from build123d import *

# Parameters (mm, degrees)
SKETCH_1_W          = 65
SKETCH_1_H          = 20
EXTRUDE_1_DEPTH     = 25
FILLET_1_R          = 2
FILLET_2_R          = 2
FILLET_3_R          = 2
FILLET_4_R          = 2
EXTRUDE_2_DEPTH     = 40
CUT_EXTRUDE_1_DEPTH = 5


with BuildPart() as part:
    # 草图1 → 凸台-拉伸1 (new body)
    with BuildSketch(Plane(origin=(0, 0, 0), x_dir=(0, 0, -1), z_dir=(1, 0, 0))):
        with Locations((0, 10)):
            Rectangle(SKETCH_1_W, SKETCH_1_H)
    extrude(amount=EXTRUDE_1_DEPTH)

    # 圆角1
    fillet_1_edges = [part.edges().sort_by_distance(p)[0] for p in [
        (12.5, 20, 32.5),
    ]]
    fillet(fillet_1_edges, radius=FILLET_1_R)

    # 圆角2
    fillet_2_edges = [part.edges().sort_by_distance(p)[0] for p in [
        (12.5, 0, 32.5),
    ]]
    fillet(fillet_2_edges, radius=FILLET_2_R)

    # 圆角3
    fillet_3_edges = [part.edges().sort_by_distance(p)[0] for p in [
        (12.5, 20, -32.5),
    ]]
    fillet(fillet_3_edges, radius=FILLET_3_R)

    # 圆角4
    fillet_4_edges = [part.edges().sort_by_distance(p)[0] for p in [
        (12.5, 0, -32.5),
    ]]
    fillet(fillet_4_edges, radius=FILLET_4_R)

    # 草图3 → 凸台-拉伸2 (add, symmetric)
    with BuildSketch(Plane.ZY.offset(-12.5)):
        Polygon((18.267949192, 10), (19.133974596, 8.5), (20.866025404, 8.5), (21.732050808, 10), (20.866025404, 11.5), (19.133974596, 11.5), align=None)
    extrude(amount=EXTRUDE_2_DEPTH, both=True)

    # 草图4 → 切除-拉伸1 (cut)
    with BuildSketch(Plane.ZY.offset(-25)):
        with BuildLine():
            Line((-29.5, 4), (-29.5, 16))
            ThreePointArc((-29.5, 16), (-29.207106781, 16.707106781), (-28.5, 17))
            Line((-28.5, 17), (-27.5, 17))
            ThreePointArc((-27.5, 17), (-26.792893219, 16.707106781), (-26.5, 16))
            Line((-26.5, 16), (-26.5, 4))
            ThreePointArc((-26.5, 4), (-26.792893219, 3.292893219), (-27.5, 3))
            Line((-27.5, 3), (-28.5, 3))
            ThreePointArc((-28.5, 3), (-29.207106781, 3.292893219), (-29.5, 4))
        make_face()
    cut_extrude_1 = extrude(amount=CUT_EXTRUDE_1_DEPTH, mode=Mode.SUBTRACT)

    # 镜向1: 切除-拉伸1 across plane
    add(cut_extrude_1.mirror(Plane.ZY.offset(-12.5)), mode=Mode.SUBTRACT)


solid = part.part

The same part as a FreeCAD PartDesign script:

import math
import FreeCAD as App
import Part
import Sketcher

V = App.Vector
Q = App.Units.Quantity


def edges_at(feature, points):
    """Names of the edges that pass closest to the given points."""
    edges = feature.Shape.Edges
    near = lambda p: min(range(len(edges)), key=lambda i: edges[i].distToShape(Part.Vertex(*p))[0])
    return sorted({f"Edge{near(p) + 1}" for p in points})

doc = App.newDocument("Part")
body = doc.addObject("PartDesign::Body", "Body")

# Sketch on YZ plane
sketch1 = body.newObject("Sketcher::SketchObject", "Sketch")
sketch1.AttachmentSupport = (doc.getObject("YZ_Plane"), [""])
sketch1.MapMode = "FlatFace"
sketch1.addGeometry([
    Part.LineSegment(V(20, 32, 0), V(0, 32, 0)),
    Part.LineSegment(V(0, 32, 0), V(0, -32, 0)),
    Part.LineSegment(V(0, -32, 0), V(20, -32, 0)),
    Part.LineSegment(V(20, -32, 0), V(20, 32, 0)),
], False)
sketch1.addConstraint([
    Sketcher.Constraint("Coincident", 0, 2, 1, 1),
    Sketcher.Constraint("Coincident", 1, 2, 2, 1),
    Sketcher.Constraint("Coincident", 2, 2, 3, 1),
    Sketcher.Constraint("Coincident", 3, 2, 0, 1),
    Sketcher.Constraint("Horizontal", 0),
    Sketcher.Constraint("Vertical", 1),
    Sketcher.Constraint("Horizontal", 2),
    Sketcher.Constraint("Vertical", 3),
    Sketcher.Constraint("Symmetric", 0, 2, 1, 2, -1, 1),
    Sketcher.Constraint("DistanceX", 0, 2, 0, 1, 20.0),
    Sketcher.Constraint("DistanceY", 1, 2, 1, 1, 65.0),
])
pad1 = body.newObject("PartDesign::Pad", "Pad")
pad1.Profile = sketch1
pad1.Length = 25
doc.recompute()

fillet = body.newObject("PartDesign::Fillet", "Fillet")
fillet.Base = (pad1, edges_at(pad1, [(12.5, 20, 32.5)]))
fillet.Radius = 2
doc.recompute()

fillet2 = body.newObject("PartDesign::Fillet", "Fillet001")
fillet2.Base = (fillet, edges_at(fillet, [(12.5, 0, 32.5)]))
fillet2.Radius = 2
doc.recompute()

fillet3 = body.newObject("PartDesign::Fillet", "Fillet002")
fillet3.Base = (fillet2, edges_at(fillet2, [(12.5, 20, -32.5)]))
fillet3.Radius = 2
doc.recompute()

fillet4 = body.newObject("PartDesign::Fillet", "Fillet003")
fillet4.Base = (fillet3, edges_at(fillet3, [(12.5, 0, -32.5)]))
fillet4.Radius = 2

# Sketch on YZ plane
sketch2 = body.newObject("Sketcher::SketchObject", "Sketch001")
sketch2.AttachmentSupport = (doc.getObject("YZ_Plane"), [""])
sketch2.MapMode = "FlatFace"
sketch2.AttachmentOffset = App.Placement(V(0, 0, 12.5), App.Rotation())
sketch2.addGeometry([
    Part.LineSegment(V(10, 18.3, 0), V(8.5, 19.1, 0)),  # 0
    Part.LineSegment(V(8.5, 19.1, 0), V(8.5, 20.9, 0)),  # 1
    Part.LineSegment(V(8.5, 20.9, 0), V(10, 21.7, 0)),  # 2
    Part.LineSegment(V(10, 21.7, 0), V(11.5, 20.9, 0)),  # 3
    Part.LineSegment(V(11.5, 20.9, 0), V(11.5, 19.1, 0)),  # 4
    Part.LineSegment(V(11.5, 19.1, 0), V(10, 18.3, 0)),  # 5
], False)
sketch2.addConstraint([
    Sketcher.Constraint("Coincident", 0, 2, 1, 1),
    Sketcher.Constraint("Coincident", 1, 2, 2, 1),
    Sketcher.Constraint("Coincident", 2, 2, 3, 1),
    Sketcher.Constraint("Coincident", 3, 2, 4, 1),
    Sketcher.Constraint("Coincident", 4, 2, 5, 1),
    Sketcher.Constraint("Coincident", 5, 2, 0, 1),
    Sketcher.Constraint("Vertical", 1),
    Sketcher.Constraint("Vertical", 4),
    Sketcher.Constraint("Parallel", 0, 3),
    Sketcher.Constraint("Parallel", 2, 5),
    Sketcher.Constraint("Horizontal", 1, 2, 3, 2),
    Sketcher.Constraint("Horizontal", 0, 2, 4, 2),
    Sketcher.Constraint("Vertical", 2, 2, 5, 2),
    Sketcher.Constraint("Angle", 0, Q("150 deg")),
    Sketcher.Constraint("DistanceX", -1, 1, 2, 2, 10.0),
    Sketcher.Constraint("DistanceX", 1, 2, 3, 2, 3.0),
    Sketcher.Constraint("DistanceY", 1, 1, 1, 2, 1.732051),
    Sketcher.Constraint("DistanceY", -1, 1, 2, 2, 21.732051),
])
pad2 = body.newObject("PartDesign::Pad", "Pad001")
pad2.Profile = sketch2
pad2.Length = 80
pad2.Midplane = True

# Sketch on YZ plane
sketch3 = body.newObject("Sketcher::SketchObject", "Sketch002")
sketch3.AttachmentSupport = (doc.getObject("YZ_Plane"), [""])
sketch3.MapMode = "FlatFace"
sketch3.AttachmentOffset = App.Placement(V(0, 0, 25), App.Rotation())
sketch3.addGeometry([
    Part.LineSegment(V(16, -29.5, 0), V(4, -29.5, 0)),  # 0
    Part.ArcOfCircle(Part.Circle(V(4, -28.5, 0), V(0, 0, 1), 1), math.radians(-180), math.radians(-90)),  # 1
    Part.LineSegment(V(3, -28.5, 0), V(3, -27.5, 0)),  # 2
    Part.ArcOfCircle(Part.Circle(V(4, -27.5, 0), V(0, 0, 1), 1), math.radians(90), math.radians(180)),  # 3
    Part.LineSegment(V(4, -26.5, 0), V(16, -26.5, 0)),  # 4
    Part.ArcOfCircle(Part.Circle(V(16, -27.5, 0), V(0, 0, 1), 1), math.radians(0), math.radians(90)),  # 5
    Part.LineSegment(V(17, -27.5, 0), V(17, -28.5, 0)),  # 6
    Part.ArcOfCircle(Part.Circle(V(16, -28.5, 0), V(0, 0, 1), 1), math.radians(-90), math.radians(0)),  # 7
], False)
sketch3.addConstraint([
    Sketcher.Constraint("Tangent", 0, 2, 1, 2),
    Sketcher.Constraint("Tangent", 1, 1, 2, 1),
    Sketcher.Constraint("Tangent", 2, 2, 3, 2),
    Sketcher.Constraint("Tangent", 3, 1, 4, 1),
    Sketcher.Constraint("Tangent", 4, 2, 5, 2),
    Sketcher.Constraint("Tangent", 5, 1, 6, 1),
    Sketcher.Constraint("Tangent", 6, 2, 7, 2),
    Sketcher.Constraint("Tangent", 7, 1, 0, 1),
    Sketcher.Constraint("Horizontal", 0),
    Sketcher.Constraint("Vertical", 2),
    Sketcher.Constraint("Horizontal", 4),
    Sketcher.Constraint("Vertical", 6),
    Sketcher.Constraint("Equal", 1, 3),
    Sketcher.Constraint("Equal", 3, 5),
    Sketcher.Constraint("Equal", 5, 7),
    Sketcher.Constraint("Radius", 1, 1.0),
    Sketcher.Constraint("DistanceX", 0, 2, 0, 1, 12.0),
    Sketcher.Constraint("DistanceY", 2, 1, 2, 2, 1.0),
    Sketcher.Constraint("DistanceX", -1, 1, 1, 3, 4.0),
    Sketcher.Constraint("DistanceY", 1, 3, -1, 1, 28.5),
])
pocket1 = body.newObject("PartDesign::Pocket", "Pocket")
pocket1.Profile = sketch3
pocket1.Length = 5
doc.recompute()

datumplane = body.newObject("PartDesign::Plane", "DatumPlane")
datumplane.AttachmentSupport = (doc.getObject("YZ_Plane"), [""])
datumplane.MapMode = "FlatFace"
datumplane.AttachmentOffset = App.Placement(V(0, 0, 12.5), App.Rotation())
mirrored = body.newObject("PartDesign::Mirrored", "Mirrored")
mirrored.Originals = [pocket1]
mirrored.MirrorPlane = (datumplane, [""])
body.Tip = mirrored

doc.recompute()
